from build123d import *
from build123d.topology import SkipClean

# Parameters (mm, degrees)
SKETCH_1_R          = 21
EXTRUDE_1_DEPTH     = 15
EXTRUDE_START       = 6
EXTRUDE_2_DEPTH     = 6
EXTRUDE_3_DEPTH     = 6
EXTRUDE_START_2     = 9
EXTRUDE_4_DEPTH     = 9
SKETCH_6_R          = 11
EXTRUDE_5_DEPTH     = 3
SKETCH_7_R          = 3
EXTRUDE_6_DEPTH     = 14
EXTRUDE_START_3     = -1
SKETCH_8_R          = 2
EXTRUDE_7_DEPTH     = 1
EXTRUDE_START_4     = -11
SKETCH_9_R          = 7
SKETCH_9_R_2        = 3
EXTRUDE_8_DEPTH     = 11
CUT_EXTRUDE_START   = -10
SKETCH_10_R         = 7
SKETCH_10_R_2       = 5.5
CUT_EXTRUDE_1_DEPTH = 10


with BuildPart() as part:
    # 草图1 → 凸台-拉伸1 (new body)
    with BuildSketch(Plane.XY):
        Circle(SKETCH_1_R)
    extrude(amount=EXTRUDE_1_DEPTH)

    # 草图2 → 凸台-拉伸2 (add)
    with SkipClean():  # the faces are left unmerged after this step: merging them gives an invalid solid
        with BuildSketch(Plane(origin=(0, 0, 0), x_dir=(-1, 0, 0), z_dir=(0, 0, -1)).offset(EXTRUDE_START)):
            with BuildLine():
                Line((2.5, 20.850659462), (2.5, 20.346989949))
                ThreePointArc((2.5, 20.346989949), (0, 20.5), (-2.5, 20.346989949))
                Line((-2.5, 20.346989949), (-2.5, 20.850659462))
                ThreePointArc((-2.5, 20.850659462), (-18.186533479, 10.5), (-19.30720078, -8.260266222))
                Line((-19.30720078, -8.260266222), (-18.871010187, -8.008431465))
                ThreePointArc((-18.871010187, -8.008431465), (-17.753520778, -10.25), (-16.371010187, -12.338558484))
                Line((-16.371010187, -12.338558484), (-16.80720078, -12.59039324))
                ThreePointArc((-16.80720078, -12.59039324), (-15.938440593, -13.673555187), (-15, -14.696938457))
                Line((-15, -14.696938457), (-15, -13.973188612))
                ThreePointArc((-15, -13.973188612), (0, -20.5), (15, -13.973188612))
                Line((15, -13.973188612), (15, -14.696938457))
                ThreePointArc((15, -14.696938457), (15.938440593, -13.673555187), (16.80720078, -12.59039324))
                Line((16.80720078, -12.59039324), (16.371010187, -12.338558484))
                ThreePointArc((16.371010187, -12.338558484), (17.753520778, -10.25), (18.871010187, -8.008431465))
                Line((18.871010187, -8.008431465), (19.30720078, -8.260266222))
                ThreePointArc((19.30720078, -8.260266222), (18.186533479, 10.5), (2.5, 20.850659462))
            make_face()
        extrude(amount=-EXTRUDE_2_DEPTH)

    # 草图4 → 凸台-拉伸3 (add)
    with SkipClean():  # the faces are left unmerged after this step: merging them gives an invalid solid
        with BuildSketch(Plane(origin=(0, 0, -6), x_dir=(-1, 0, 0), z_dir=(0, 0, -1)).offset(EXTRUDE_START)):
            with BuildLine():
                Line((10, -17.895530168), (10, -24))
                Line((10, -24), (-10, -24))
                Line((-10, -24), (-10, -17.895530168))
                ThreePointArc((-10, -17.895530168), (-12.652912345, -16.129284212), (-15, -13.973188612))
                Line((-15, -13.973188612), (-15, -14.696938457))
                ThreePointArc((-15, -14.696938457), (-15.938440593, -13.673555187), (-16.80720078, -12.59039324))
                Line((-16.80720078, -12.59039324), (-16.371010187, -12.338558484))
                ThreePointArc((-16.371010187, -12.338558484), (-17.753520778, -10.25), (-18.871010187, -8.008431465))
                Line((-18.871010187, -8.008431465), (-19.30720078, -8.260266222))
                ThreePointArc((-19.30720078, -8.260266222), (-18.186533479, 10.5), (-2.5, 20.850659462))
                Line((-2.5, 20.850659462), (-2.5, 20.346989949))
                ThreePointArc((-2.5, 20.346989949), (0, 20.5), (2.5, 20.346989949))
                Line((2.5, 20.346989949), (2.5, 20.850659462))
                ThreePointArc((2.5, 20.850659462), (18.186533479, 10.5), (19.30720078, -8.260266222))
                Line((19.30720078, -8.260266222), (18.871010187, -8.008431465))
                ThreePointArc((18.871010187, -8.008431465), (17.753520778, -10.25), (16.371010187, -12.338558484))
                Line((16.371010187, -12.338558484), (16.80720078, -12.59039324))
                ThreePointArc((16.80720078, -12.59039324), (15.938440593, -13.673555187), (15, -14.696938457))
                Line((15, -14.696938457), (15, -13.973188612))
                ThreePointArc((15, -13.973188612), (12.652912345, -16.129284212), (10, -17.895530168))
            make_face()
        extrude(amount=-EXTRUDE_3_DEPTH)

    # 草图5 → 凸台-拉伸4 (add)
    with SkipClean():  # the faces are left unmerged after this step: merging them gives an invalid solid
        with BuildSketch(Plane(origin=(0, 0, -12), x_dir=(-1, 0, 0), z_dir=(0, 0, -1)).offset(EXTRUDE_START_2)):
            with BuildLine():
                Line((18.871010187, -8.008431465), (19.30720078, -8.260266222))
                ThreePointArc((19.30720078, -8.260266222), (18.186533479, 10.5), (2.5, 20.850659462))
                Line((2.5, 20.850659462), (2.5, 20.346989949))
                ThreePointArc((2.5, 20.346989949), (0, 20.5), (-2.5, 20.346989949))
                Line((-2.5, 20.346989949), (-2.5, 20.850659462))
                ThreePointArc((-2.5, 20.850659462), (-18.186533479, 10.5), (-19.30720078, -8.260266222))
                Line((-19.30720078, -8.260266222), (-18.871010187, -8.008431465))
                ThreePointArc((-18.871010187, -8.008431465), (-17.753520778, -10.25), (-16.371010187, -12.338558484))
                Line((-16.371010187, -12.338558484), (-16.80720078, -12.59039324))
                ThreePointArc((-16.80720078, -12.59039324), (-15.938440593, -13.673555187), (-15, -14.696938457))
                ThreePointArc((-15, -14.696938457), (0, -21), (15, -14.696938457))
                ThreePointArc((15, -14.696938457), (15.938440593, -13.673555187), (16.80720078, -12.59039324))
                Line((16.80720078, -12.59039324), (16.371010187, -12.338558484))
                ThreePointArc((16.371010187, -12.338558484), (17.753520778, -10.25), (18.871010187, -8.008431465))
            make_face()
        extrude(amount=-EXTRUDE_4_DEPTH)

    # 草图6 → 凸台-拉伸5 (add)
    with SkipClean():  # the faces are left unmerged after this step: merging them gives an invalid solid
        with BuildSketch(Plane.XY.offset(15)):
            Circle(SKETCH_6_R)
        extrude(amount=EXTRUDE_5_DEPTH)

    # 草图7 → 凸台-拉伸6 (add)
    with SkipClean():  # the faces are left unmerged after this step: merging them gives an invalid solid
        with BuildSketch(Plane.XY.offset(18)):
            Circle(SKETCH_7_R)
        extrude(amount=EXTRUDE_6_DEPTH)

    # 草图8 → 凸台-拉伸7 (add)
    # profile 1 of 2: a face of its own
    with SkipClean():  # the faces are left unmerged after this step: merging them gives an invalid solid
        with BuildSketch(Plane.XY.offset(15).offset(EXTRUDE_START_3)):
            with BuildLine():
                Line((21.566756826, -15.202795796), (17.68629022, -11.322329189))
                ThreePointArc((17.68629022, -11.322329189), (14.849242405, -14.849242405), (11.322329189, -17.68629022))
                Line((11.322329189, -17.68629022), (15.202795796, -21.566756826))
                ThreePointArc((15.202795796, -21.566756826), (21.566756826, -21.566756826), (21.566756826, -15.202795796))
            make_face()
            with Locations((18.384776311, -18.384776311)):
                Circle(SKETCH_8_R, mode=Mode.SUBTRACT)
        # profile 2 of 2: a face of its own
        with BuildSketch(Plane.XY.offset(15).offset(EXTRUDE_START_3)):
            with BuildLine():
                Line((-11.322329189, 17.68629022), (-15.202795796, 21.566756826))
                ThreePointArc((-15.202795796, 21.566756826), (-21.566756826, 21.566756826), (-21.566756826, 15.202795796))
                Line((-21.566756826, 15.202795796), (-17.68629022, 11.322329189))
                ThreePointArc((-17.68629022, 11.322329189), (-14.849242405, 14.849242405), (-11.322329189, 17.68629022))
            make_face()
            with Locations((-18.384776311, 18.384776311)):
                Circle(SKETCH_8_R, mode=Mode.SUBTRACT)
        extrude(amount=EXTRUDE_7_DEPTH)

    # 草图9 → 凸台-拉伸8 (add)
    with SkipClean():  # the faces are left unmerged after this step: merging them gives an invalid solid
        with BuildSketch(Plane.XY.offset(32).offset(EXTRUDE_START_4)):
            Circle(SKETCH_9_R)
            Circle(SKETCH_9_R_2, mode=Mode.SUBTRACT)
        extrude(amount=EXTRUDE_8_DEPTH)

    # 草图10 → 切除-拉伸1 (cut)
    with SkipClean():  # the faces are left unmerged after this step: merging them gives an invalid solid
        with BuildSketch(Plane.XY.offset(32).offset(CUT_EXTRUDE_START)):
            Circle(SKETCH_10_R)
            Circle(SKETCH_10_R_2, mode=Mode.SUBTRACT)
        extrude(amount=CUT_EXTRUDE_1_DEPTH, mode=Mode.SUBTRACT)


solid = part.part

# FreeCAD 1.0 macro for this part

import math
import FreeCAD as App
import Part
import Sketcher
from FreeCAD import Vector
Q = App.Units.Quantity

doc = App.newDocument("Part")
body = doc.addObject("PartDesign::Body", "Body")

sketch1 = body.newObject("Sketcher::SketchObject", "Sketch")
sketch1.AttachmentSupport = (doc.getObject("XY_Plane"), [""])
sketch1.MapMode = "FlatFace"
sketch1.addGeometry(Part.Circle(Vector(0, 0, 0), Vector(0, 0, 1), 21), False)
sketch1.addConstraint([
    Sketcher.Constraint("Coincident", 0, 3, -1, 1),
    Sketcher.Constraint("Diameter", 0, 42.0),
])
pad1 = body.newObject("PartDesign::Pad", "Pad")
pad1.Profile = sketch1
pad1.Length = 15

sketch2 = body.newObject("Sketcher::SketchObject", "Sketch001")
sketch2.AttachmentSupport = (doc.getObject("XY_Plane"), [""])
sketch2.MapMode = "FlatFace"
sketch2.AttachmentOffset = App.Placement(Vector(0, 0, -6), App.Rotation())
sketch2.addGeometry([
    Part.LineSegment(Vector(-2.5, 20.9, 0), Vector(-2.5, 20.3, 0)),
    Part.ArcOfCircle(Part.Circle(Vector(0, 0, 0), Vector(0, 0, 1), 20.5), math.radians(83), math.radians(97)),
    Part.LineSegment(Vector(2.5, 20.3, 0), Vector(2.5, 20.9, 0)),
    Part.ArcOfCircle(Part.Circle(Vector(0, 0, 0), Vector(0, 0, 1), 21), math.radians(-23), math.radians(83)),
    Part.LineSegment(Vector(19.3, -8.3, 0), Vector(18.9, -8, 0)),
    Part.ArcOfCircle(Part.Circle(Vector(0, 0, 0), Vector(0, 0, 1), 20.5), math.radians(-37), math.radians(-23)),
    Part.LineSegment(Vector(16.4, -12.3, 0), Vector(16.8, -12.6, 0)),
    Part.ArcOfCircle(Part.Circle(Vector(0, 0, 0), Vector(0, 0, 1), 21), math.radians(-44.42), math.radians(-36.84)),
    Part.LineSegment(Vector(15, -14.7, 0), Vector(15, -14, 0)),
    Part.ArcOfCircle(Part.Circle(Vector(0, 0, 0), Vector(0, 0, 1), 20.5), math.radians(-137), math.radians(-43)),
    Part.LineSegment(Vector(-15, -14, 0), Vector(-15, -14.7, 0)),
    Part.ArcOfCircle(Part.Circle(Vector(0, 0, 0), Vector(0, 0, 1), 21), math.radians(-143.16), math.radians(-135.58)),
    Part.LineSegment(Vector(-16.8, -12.6, 0), Vector(-16.4, -12.3, 0)),
    Part.ArcOfCircle(Part.Circle(Vector(0, 0, 0), Vector(0, 0, 1), 20.5), math.radians(-157), math.radians(-143)),
    Part.LineSegment(Vector(-18.9, -8, 0), Vector(-19.3, -8.3, 0)),
    Part.ArcOfCircle(Part.Circle(Vector(0, 0, 0), Vector(0, 0, 1), 21), math.radians(97), math.radians(203)),
], False)
sketch2.addConstraint([
    Sketcher.Constraint("Coincident", 0, 2, 1, 2),
    Sketcher.Constraint("Coincident", 1, 1, 2, 1),
    Sketcher.Constraint("Coincident", 2, 2, 3, 2),
    Sketcher.Constraint("Coincident", 3, 1, 4, 1),
    Sketcher.Constraint("Coincident", 4, 2, 5, 2),
    Sketcher.Constraint("Coincident", 5, 1, 6, 1),
    Sketcher.Constraint("Coincident", 6, 2, 7, 2),
    Sketcher.Constraint("Coincident", 7, 1, 8, 1),
    Sketcher.Constraint("Coincident", 8, 2, 9, 2),
    Sketcher.Constraint("Coincident", 9, 1, 10, 1),
    Sketcher.Constraint("Coincident", 10, 2, 11, 2),
    Sketcher.Constraint("Coincident", 11, 1, 12, 1),
    Sketcher.Constraint("Coincident", 12, 2, 13, 2),
    Sketcher.Constraint("Coincident", 13, 1, 14, 1),
    Sketcher.Constraint("Coincident", 14, 2, 15, 2),
    Sketcher.Constraint("Coincident", 15, 1, 0, 1),
    Sketcher.Constraint("Vertical", 0),
    Sketcher.Constraint("Vertical", 2),
    Sketcher.Constraint("Vertical", 8),
    Sketcher.Constraint("Vertical", 10),
    Sketcher.Constraint("Coincident", 1, 3, -1, 1),
    Sketcher.Constraint("Coincident", 3, 3, -1, 1),
    Sketcher.Constraint("Coincident", 5, 3, -1, 1),
    Sketcher.Constraint("Coincident", 7, 3, -1, 1),
    Sketcher.Constraint("Coincident", 9, 3, -1, 1),
    Sketcher.Constraint("Coincident", 11, 3, -1, 1),
    Sketcher.Constraint("Coincident", 13, 3, -1, 1),
    Sketcher.Constraint("Coincident", 15, 3, -1, 1),
    Sketcher.Constraint("Equal", 1, 5),
    Sketcher.Constraint("Equal", 3, 7),
    Sketcher.Constraint("Equal", 5, 9),
    Sketcher.Constraint("Equal", 7, 11),
    Sketcher.Constraint("Equal", 9, 13),
    Sketcher.Constraint("Equal", 11, 15),
    Sketcher.Constraint("Parallel", 4, 6),
    Sketcher.Constraint("Parallel", 12, 14),
    Sketcher.Constraint("Horizontal", 0, 2, 1, 1),
    Sketcher.Constraint("Horizontal", 8, 2, 9, 1),
    Sketcher.Constraint("Horizontal", 6, 2, 11, 1),
    Sketcher.Constraint("Horizontal", 5, 1, 12, 2),
    Sketcher.Constraint("Horizontal", 4, 2, 13, 1),
    Sketcher.Constraint("Equal", 4, 6),
    Sketcher.Constraint("Radius", 3, 21.0),
    Sketcher.Constraint("Radius", 1, 20.5),
    Sketcher.Constraint("Angle", 4, Q("150 deg")),
    Sketcher.Constraint("DistanceX", -1, 1, 7, 1, 15.0),
    Sketcher.Constraint("DistanceX", 0, 2, 1, 1, 5.0),
    Sketcher.Constraint("DistanceX", 5, 1, 4, 2, 2.5),
])
pad2 = body.newObject("PartDesign::Pad", "Pad001")
pad2.Profile = sketch2
pad2.Length = 6

sketch3 = body.newObject("Sketcher::SketchObject", "Sketch002")
sketch3.AttachmentSupport = (doc.getObject("XY_Plane"), [""])
sketch3.MapMode = "FlatFace"
sketch3.AttachmentOffset = App.Placement(Vector(0, 0, -12), App.Rotation())
sketch3.addGeometry([
    Part.LineSegment(Vector(-10, -24, 0), Vector(-10, -17.9, 0)),
    Part.ArcOfCircle(Part.Circle(Vector(0, 0, 0), Vector(0, 0, 1), 20.5), math.radians(-137.03), math.radians(-119.2)),
    Part.LineSegment(Vector(-15, -14, 0), Vector(-15, -14.7, 0)),
    Part.ArcOfCircle(Part.Circle(Vector(0, 0, 0), Vector(0, 0, 1), 21), math.radians(-143.16), math.radians(-135.58)),
    Part.LineSegment(Vector(-16.8, -12.6, 0), Vector(-16.4, -12.3, 0)),
    Part.ArcOfCircle(Part.Circle(Vector(0, 0, 0), Vector(0, 0, 1), 20.5), math.radians(-157), math.radians(-143)),
    Part.LineSegment(Vector(-18.9, -8, 0), Vector(-19.3, -8.3, 0)),
    Part.ArcOfCircle(Part.Circle(Vector(0, 0, 0), Vector(0, 0, 1), 21), math.radians(97), math.radians(203)),
    Part.LineSegment(Vector(-2.5, 20.9, 0), Vector(-2.5, 20.3, 0)),
    Part.ArcOfCircle(Part.Circle(Vector(0, 0, 0), Vector(0, 0, 1), 20.5), math.radians(83), math.radians(97)),
    Part.LineSegment(Vector(2.5, 20.3, 0), Vector(2.5, 20.9, 0)),
    Part.ArcOfCircle(Part.Circle(Vector(0, 0, 0), Vector(0, 0, 1), 21), math.radians(-23), math.radians(83)),
    Part.LineSegment(Vector(19.3, -8.3, 0), Vector(18.9, -8, 0)),
    Part.ArcOfCircle(Part.Circle(Vector(0, 0, 0), Vector(0, 0, 1), 20.5), math.radians(-37), math.radians(-23)),
    Part.LineSegment(Vector(16.4, -12.3, 0), Vector(16.8, -12.6, 0)),
    Part.ArcOfCircle(Part.Circle(Vector(0, 0, 0), Vector(0, 0, 1), 21), math.radians(-44.42), math.radians(-36.84)),
    Part.LineSegment(Vector(15, -14.7, 0), Vector(15, -14, 0)),
    Part.ArcOfCircle(Part.Circle(Vector(0, 0, 0), Vector(0, 0, 1), 20.5), math.radians(-60.8), math.radians(-42.97)),
    Part.LineSegment(Vector(10, -17.9, 0), Vector(10, -24, 0)),
    Part.LineSegment(Vector(10, -24, 0), Vector(-10, -24, 0)),
], False)
sketch3.addConstraint([
    Sketcher.Constraint("Coincident", 0, 2, 1, 2),
    Sketcher.Constraint("Coincident", 1, 1, 2, 1),
    Sketcher.Constraint("Coincident", 2, 2, 3, 2),
    Sketcher.Constraint("Coincident", 3, 1, 4, 1),
    Sketcher.Constraint("Coincident", 4, 2, 5, 2),
    Sketcher.Constraint("Coincident", 5, 1, 6, 1),
    Sketcher.Constraint("Coincident", 6, 2, 7, 2),
    Sketcher.Constraint("Coincident", 7, 1, 8, 1),
    Sketcher.Constraint("Coincident", 8, 2, 9, 2),
    Sketcher.Constraint("Coincident", 9, 1, 10, 1),
    Sketcher.Constraint("Coincident", 10, 2, 11, 2),
    Sketcher.Constraint("Coincident", 11, 1, 12, 1),
    Sketcher.Constraint("Coincident", 12, 2, 13, 2),
    Sketcher.Constraint("Coincident", 13, 1, 14, 1),
    Sketcher.Constraint("Coincident", 14, 2, 15, 2),
    Sketcher.Constraint("Coincident", 15, 1, 16, 1),
    Sketcher.Constraint("Coincident", 16, 2, 17, 2),
    Sketcher.Constraint("Coincident", 17, 1, 18, 1),
    Sketcher.Constraint("Coincident", 18, 2, 19, 1),
    Sketcher.Constraint("Coincident", 19, 2, 0, 1),
    Sketcher.Constraint("Vertical", 0),
    Sketcher.Constraint("Vertical", 2),
    Sketcher.Constraint("Vertical", 8),
    Sketcher.Constraint("Vertical", 10),
    Sketcher.Constraint("Vertical", 16),
    Sketcher.Constraint("Vertical", 18),
    Sketcher.Constraint("Horizontal", 19),
    Sketcher.Constraint("Coincident", 1, 3, -1, 1),
    Sketcher.Constraint("Coincident", 3, 3, -1, 1),
    Sketcher.Constraint("Coincident", 5, 3, -1, 1),
    Sketcher.Constraint("Coincident", 7, 3, -1, 1),
    Sketcher.Constraint("Coincident", 9, 3, -1, 1),
    Sketcher.Constraint("Coincident", 11, 3, -1, 1),
    Sketcher.Constraint("Coincident", 13, 3, -1, 1),
    Sketcher.Constraint("Coincident", 15, 3, -1, 1),
    Sketcher.Constraint("Coincident", 17, 3, -1, 1),
    Sketcher.Constraint("Equal", 1, 5),
    Sketcher.Constraint("Equal", 3, 7),
    Sketcher.Constraint("Equal", 5, 9),
    Sketcher.Constraint("Equal", 7, 11),
    Sketcher.Constraint("Equal", 9, 13),
    Sketcher.Constraint("Equal", 11, 15),
    Sketcher.Constraint("Equal", 13, 17),
    Sketcher.Constraint("Parallel", 4, 6),
    Sketcher.Constraint("Parallel", 12, 14),
    Sketcher.Constraint("Horizontal", 8, 2, 9, 1),
    Sketcher.Constraint("Horizontal", 6, 2, 11, 1),
    Sketcher.Constraint("Horizontal", 5, 1, 12, 2),
    Sketcher.Constraint("Horizontal", 4, 2, 13, 1),
    Sketcher.Constraint("Horizontal", 2, 2, 15, 1),
    Sketcher.Constraint("Horizontal", 0, 2, 17, 1),
    Sketcher.Constraint("Equal", 4, 6),
    Sketcher.Constraint("Radius", 3, 21.0),
    Sketcher.Constraint("Radius", 1, 20.5),
    Sketcher.Constraint("DistanceX", 19, 2, 19, 1, 20.0),
    Sketcher.Constraint("Angle", 4, Q("30 deg")),
    Sketcher.Constraint("DistanceX", 1, 1, -1, 1, 15.0),
    Sketcher.Constraint("DistanceY", 18, 2, -1, 1, 24.0),
    Sketcher.Constraint("DistanceX", 8, 2, 9, 1, 5.0),
    Sketcher.Constraint("DistanceX", 5, 1, 4, 2, 2.5),
])
pad3 = body.newObject("PartDesign::Pad", "Pad002")
pad3.Profile = sketch3
pad3.Length = 6

sketch4 = body.newObject("Sketcher::SketchObject", "Sketch003")
sketch4.AttachmentSupport = (doc.getObject("XY_Plane"), [""])
sketch4.MapMode = "FlatFace"
sketch4.AttachmentOffset = App.Placement(Vector(0, 0, -21), App.Rotation())
sketch4.addGeometry([
    Part.LineSegment(Vector(-18.9, -8, 0), Vector(-19.3, -8.3, 0)),
    Part.ArcOfCircle(Part.Circle(Vector(0, 0, 0), Vector(0, 0, 1), 21), math.radians(97), math.radians(203)),
    Part.LineSegment(Vector(-2.5, 20.9, 0), Vector(-2.5, 20.3, 0)),
    Part.ArcOfCircle(Part.Circle(Vector(0, 0, 0), Vector(0, 0, 1), 20.5), math.radians(83), math.radians(97)),
    Part.LineSegment(Vector(2.5, 20.3, 0), Vector(2.5, 20.9, 0)),
    Part.ArcOfCircle(Part.Circle(Vector(0, 0, 0), Vector(0, 0, 1), 21), math.radians(-23), math.radians(83)),
    Part.LineSegment(Vector(19.3, -8.3, 0), Vector(18.9, -8, 0)),
    Part.ArcOfCircle(Part.Circle(Vector(0, 0, 0), Vector(0, 0, 1), 20.5), math.radians(-37), math.radians(-23)),
    Part.LineSegment(Vector(16.4, -12.3, 0), Vector(16.8, -12.6, 0)),
    Part.ArcOfCircle(Part.Circle(Vector(0, 0, 0), Vector(0, 0, 1), 21), math.radians(-44.42), math.radians(-36.84)),
    Part.ArcOfCircle(Part.Circle(Vector(0, 0, 0), Vector(0, 0, 1), 21), math.radians(-136), math.radians(-44)),
    Part.ArcOfCircle(Part.Circle(Vector(0, 0, 0), Vector(0, 0, 1), 21), math.radians(-143.16), math.radians(-135.58)),
    Part.LineSegment(Vector(-16.8, -12.6, 0), Vector(-16.4, -12.3, 0)),
    Part.ArcOfCircle(Part.Circle(Vector(0, 0, 0), Vector(0, 0, 1), 20.5), math.radians(-157), math.radians(-143)),
], False)
sketch4.addConstraint([
    Sketcher.Constraint("Coincident", 0, 2, 1, 2),
    Sketcher.Constraint("Coincident", 1, 1, 2, 1),
    Sketcher.Constraint("Coincident", 2, 2, 3, 2),
    Sketcher.Constraint("Coincident", 3, 1, 4, 1),
    Sketcher.Constraint("Coincident", 4, 2, 5, 2),
    Sketcher.Constraint("Coincident", 5, 1, 6, 1),
    Sketcher.Constraint("Coincident", 6, 2, 7, 2),
    Sketcher.Constraint("Coincident", 7, 1, 8, 1),
    Sketcher.Constraint("Coincident", 8, 2, 9, 2),
    Sketcher.Constraint("Tangent", 9, 1, 10, 2),
    Sketcher.Constraint("Tangent", 10, 1, 11, 2),
    Sketcher.Constraint("Coincident", 11, 1, 12, 1),
    Sketcher.Constraint("Coincident", 12, 2, 13, 2),
    Sketcher.Constraint("Coincident", 13, 1, 0, 1),
    Sketcher.Constraint("Vertical", 2),
    Sketcher.Constraint("Vertical", 4),
    Sketcher.Constraint("Coincident", 1, 3, -1, 1),
    Sketcher.Constraint("Coincident", 3, 3, -1, 1),
    Sketcher.Constraint("Coincident", 5, 3, -1, 1),
    Sketcher.Constraint("Coincident", 7, 3, -1, 1),
    Sketcher.Constraint("Coincident", 9, 3, -1, 1),
    Sketcher.Constraint("Coincident", 11, 3, -1, 1),
    Sketcher.Constraint("Coincident", 13, 3, -1, 1),
    Sketcher.Constraint("Equal", 1, 5),
    Sketcher.Constraint("Equal", 3, 7),
    Sketcher.Constraint("Equal", 5, 9),
    Sketcher.Constraint("Equal", 7, 13),
    Sketcher.Constraint("Parallel", 6, 8),
    Sketcher.Constraint("Parallel", 0, 12),
    Sketcher.Constraint("Horizontal", 2, 2, 3, 1),
    Sketcher.Constraint("Horizontal", 0, 2, 5, 1),
    Sketcher.Constraint("Horizontal", 9, 1, 10, 1),
    Sketcher.Constraint("Horizontal", 8, 2, 11, 1),
    Sketcher.Constraint("Horizontal", 7, 1, 12, 2),
    Sketcher.Constraint("Equal", 6, 8),
    Sketcher.Constraint("Radius", 1, 21.0),
    Sketcher.Constraint("Radius", 3, 20.5),
    Sketcher.Constraint("Angle", 0, Q("-150 deg")),
    Sketcher.Constraint("DistanceX", -1, 1, 9, 1, 15.0),
    Sketcher.Constraint("DistanceX", 2, 2, 3, 1, 5.0),
    Sketcher.Constraint("DistanceX", 7, 1, 6, 2, 2.5),
])
pad4 = body.newObject("PartDesign::Pad", "Pad003")
pad4.Profile = sketch4
pad4.Length = 9

sketch5 = body.newObject("Sketcher::SketchObject", "Sketch004")
sketch5.AttachmentSupport = (doc.getObject("XY_Plane"), [""])
sketch5.MapMode = "FlatFace"
sketch5.AttachmentOffset = App.Placement(Vector(0, 0, 15), App.Rotation())
sketch5.addGeometry(Part.Circle(Vector(0, 0, 0), Vector(0, 0, 1), 11), False)
sketch5.addConstraint([
    Sketcher.Constraint("Coincident", 0, 3, -1, 1),
    Sketcher.Constraint("Diameter", 0, 22.0),
])
pad5 = body.newObject("PartDesign::Pad", "Pad004")
pad5.Profile = sketch5
pad5.Length = 3

sketch6 = body.newObject("Sketcher::SketchObject", "Sketch005")
sketch6.AttachmentSupport = (doc.getObject("XY_Plane"), [""])
sketch6.MapMode = "FlatFace"
sketch6.AttachmentOffset = App.Placement(Vector(0, 0, 18), App.Rotation())
sketch6.addGeometry(Part.Circle(Vector(0, 0, 0), Vector(0, 0, 1), 3), False)
sketch6.addConstraint([
    Sketcher.Constraint("Coincident", 0, 3, -1, 1),
    Sketcher.Constraint("Diameter", 0, 6.0),
])
pad6 = body.newObject("PartDesign::Pad", "Pad005")
pad6.Profile = sketch6
pad6.Length = 14

sketch7 = body.newObject("Sketcher::SketchObject", "Sketch006")
sketch7.AttachmentSupport = (doc.getObject("XY_Plane"), [""])
sketch7.MapMode = "FlatFace"
sketch7.AttachmentOffset = App.Placement(Vector(0, 0, 14), App.Rotation())
sketch7.addGeometry([
    Part.LineSegment(Vector(21.6, -15.2, 0), Vector(17.7, -11.3, 0)),
    Part.ArcOfCircle(Part.Circle(Vector(0, 0, 0), Vector(0, 0, 1), 21), math.radians(-57), math.radians(-33)),
    Part.LineSegment(Vector(11.3, -17.7, 0), Vector(15.2, -21.6, 0)),
    Part.ArcOfCircle(Part.Circle(Vector(18.4, -18.4, 0), Vector(0, 0, 1), 4.5), math.radians(-135), math.radians(45)),
    Part.Circle(Vector(18.4, -18.4, 0), Vector(0, 0, 1), 2),
    Part.LineSegment(Vector(-11.3, 17.7, 0), Vector(-15.2, 21.6, 0)),
    Part.ArcOfCircle(Part.Circle(Vector(-18.4, 18.4, 0), Vector(0, 0, 1), 4.5), math.radians(45), math.radians(225)),
    Part.LineSegment(Vector(-21.6, 15.2, 0), Vector(-17.7, 11.3, 0)),
    Part.ArcOfCircle(Part.Circle(Vector(0, 0, 0), Vector(0, 0, 1), 21), math.radians(123), math.radians(147)),
    Part.Circle(Vector(-18.4, 18.4, 0), Vector(0, 0, 1), 2),
], False)
sketch7.addConstraint([
    Sketcher.Constraint("Coincident", 0, 2, 1, 2),
    Sketcher.Constraint("Coincident", 1, 1, 2, 1),
    Sketcher.Constraint("Tangent", 2, 2, 3, 1),
    Sketcher.Constraint("Tangent", 3, 2, 0, 1),
    Sketcher.Constraint("Tangent", 5, 2, 6, 1),
    Sketcher.Constraint("Tangent", 6, 2, 7, 1),
    Sketcher.Constraint("Coincident", 7, 2, 8, 2),
    Sketcher.Constraint("Coincident", 8, 1, 5, 1),
    Sketcher.Constraint("Coincident", 1, 3, -1, 1),
    Sketcher.Constraint("Coincident", 8, 3, -1, 1),
    Sketcher.Constraint("Coincident", 4, 3, 3, 3),
    Sketcher.Constraint("Coincident", 9, 3, 6, 3),
    Sketcher.Constraint("Equal", 3, 6),
    Sketcher.Constraint("Equal", 1, 8),
    Sketcher.Constraint("Equal", 4, 9),
    Sketcher.Constraint("Symmetric", 3, 3, 6, 3, -1, 1),
    Sketcher.Constraint("Parallel", 0, 2),
    Sketcher.Constraint("Parallel", 2, 5),
    Sketcher.Constraint("Parallel", 5, 7),
    Sketcher.Constraint("Equal", 0, 2),
    Sketcher.Constraint("Diameter", 4, 4.0),
    Sketcher.Constraint("Radius", 1, 21.0),
    Sketcher.Constraint("Radius", 3, 4.5),
    Sketcher.Constraint("Angle", 0, Q("135 deg")),
    Sketcher.Constraint("Distance", 0, 5.487809),
])
pad7 = body.newObject("PartDesign::Pad", "Pad006")
pad7.Profile = sketch7
pad7.Length = 1

sketch8 = body.newObject("Sketcher::SketchObject", "Sketch007")
sketch8.AttachmentSupport = (doc.getObject("XY_Plane"), [""])
sketch8.MapMode = "FlatFace"
sketch8.AttachmentOffset = App.Placement(Vector(0, 0, 21), App.Rotation())
sketch8.addGeometry([
    Part.Circle(Vector(0, 0, 0), Vector(0, 0, 1), 7),
    Part.Circle(Vector(0, 0, 0), Vector(0, 0, 1), 3),
], False)
sketch8.addConstraint([
    Sketcher.Constraint("Coincident", 0, 3, -1, 1),
    Sketcher.Constraint("Coincident", 1, 3, -1, 1),
    Sketcher.Constraint("Diameter", 0, 14.0),
    Sketcher.Constraint("Diameter", 1, 6.0),
])
pad8 = body.newObject("PartDesign::Pad", "Pad007")
pad8.Profile = sketch8
pad8.Length = 11

sketch9 = body.newObject("Sketcher::SketchObject", "Sketch008")
sketch9.AttachmentSupport = (doc.getObject("XY_Plane"), [""])
sketch9.MapMode = "FlatFace"
sketch9.AttachmentOffset = App.Placement(Vector(0, 0, 22), App.Rotation())
sketch9.addGeometry([
    Part.Circle(Vector(0, 0, 0), Vector(0, 0, 1), 7),
    Part.Circle(Vector(0, 0, 0), Vector(0, 0, 1), 6),
], False)
sketch9.addConstraint([
    Sketcher.Constraint("Coincident", 0, 3, -1, 1),
    Sketcher.Constraint("Coincident", 1, 3, -1, 1),
    Sketcher.Constraint("Diameter", 0, 14.0),
    Sketcher.Constraint("Diameter", 1, 11.0),
])
pocket1 = body.newObject("PartDesign::Pocket", "Pocket")
pocket1.Profile = sketch9
pocket1.Length = 10
pocket1.Reversed = True

doc.recompute()
